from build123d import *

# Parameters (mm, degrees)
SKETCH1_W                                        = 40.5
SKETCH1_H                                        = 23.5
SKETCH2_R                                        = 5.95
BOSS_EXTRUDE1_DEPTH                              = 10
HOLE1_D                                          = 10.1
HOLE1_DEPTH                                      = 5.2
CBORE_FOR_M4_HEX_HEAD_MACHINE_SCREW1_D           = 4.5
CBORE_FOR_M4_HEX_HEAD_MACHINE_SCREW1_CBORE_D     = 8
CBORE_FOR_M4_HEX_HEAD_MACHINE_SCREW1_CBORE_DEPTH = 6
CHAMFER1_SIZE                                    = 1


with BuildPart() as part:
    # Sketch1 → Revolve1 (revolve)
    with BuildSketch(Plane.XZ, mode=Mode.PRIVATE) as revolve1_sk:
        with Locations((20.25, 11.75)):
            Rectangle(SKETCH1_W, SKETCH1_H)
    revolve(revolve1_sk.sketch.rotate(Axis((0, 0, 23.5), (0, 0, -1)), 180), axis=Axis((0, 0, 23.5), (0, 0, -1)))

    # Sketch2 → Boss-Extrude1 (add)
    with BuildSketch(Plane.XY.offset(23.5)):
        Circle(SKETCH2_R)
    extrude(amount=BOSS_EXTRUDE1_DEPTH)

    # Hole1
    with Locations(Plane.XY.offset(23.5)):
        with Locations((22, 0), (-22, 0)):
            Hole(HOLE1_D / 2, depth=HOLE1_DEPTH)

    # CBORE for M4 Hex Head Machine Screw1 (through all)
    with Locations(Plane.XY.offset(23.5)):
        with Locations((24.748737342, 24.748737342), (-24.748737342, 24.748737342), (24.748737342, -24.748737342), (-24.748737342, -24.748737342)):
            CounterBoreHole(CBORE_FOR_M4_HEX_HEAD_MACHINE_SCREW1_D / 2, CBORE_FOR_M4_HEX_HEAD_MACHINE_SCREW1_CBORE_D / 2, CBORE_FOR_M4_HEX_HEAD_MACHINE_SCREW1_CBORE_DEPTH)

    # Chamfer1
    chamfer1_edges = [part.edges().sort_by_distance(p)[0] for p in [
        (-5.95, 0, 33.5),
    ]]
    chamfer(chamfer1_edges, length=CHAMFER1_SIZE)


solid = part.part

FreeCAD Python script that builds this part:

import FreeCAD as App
import Part
import Sketcher

V = App.Vector
Q = App.Units.Quantity


def edges_at(feature, points):
    """Names of the edges that pass closest to the given points."""
    edges = feature.Shape.Edges
    near = lambda p: min(range(len(edges)), key=lambda i: edges[i].distToShape(Part.Vertex(*p))[0])
    return sorted({f"Edge{near(p) + 1}" for p in points})

doc = App.newDocument("Part")
body = doc.addObject("PartDesign::Body", "Body")

sketch1 = doc.addObject("Sketcher::SketchObject", "Sketch")
body.addObject(sketch1)
sketch1.AttachmentSupport = (doc.XZ_Plane, [""])
sketch1.MapMode = "FlatFace"
sketch1.addGeometry([
    Part.LineSegment(V(0, 23.5, 0), V(0, 0, 0)),
    Part.LineSegment(V(0, 0, 0), V(40.5, 0, 0)),
    Part.LineSegment(V(40.5, 0, 0), V(40.5, 23.5, 0)),
    Part.LineSegment(V(40.5, 23.5, 0), V(0, 23.5, 0)),
], False)
sketch1.addConstraint([
    Sketcher.Constraint("Coincident", 0, 2, 1, 1),
    Sketcher.Constraint("Coincident", 1, 2, 2, 1),
    Sketcher.Constraint("Coincident", 2, 2, 3, 1),
    Sketcher.Constraint("Coincident", 3, 2, 0, 1),
    Sketcher.Constraint("Vertical", 0),
    Sketcher.Constraint("Horizontal", 1),
    Sketcher.Constraint("Vertical", 2),
    Sketcher.Constraint("Horizontal", 3),
    Sketcher.Constraint("Coincident", 0, 2, -1, 1),
    Sketcher.Constraint("DistanceX", 1, 1, 1, 2, Q("40.5 mm")),
    Sketcher.Constraint("DistanceY", 0, 2, 0, 1, Q("23.5 mm")),
])
revolution = doc.addObject("PartDesign::Revolution", "Revolution")
body.addObject(revolution)
revolution.Profile = sketch1
revolution.ReferenceAxis = (sketch1, ["V_Axis"])
revolution.Angle = 360

sketch2 = doc.addObject("Sketcher::SketchObject", "Sketch001")
body.addObject(sketch2)
sketch2.AttachmentSupport = (doc.XY_Plane, [""])
sketch2.MapMode = "FlatFace"
sketch2.AttachmentOffset = App.Placement(V(0, 0, 23.5), App.Rotation())
sketch2.addGeometry(Part.Circle(V(0, 0, 0), V(0, 0, 1), 5.95), False)
sketch2.addConstraint([
    Sketcher.Constraint("Coincident", 0, 3, -1, 1),
    Sketcher.Constraint("Diameter", 0, Q("11.9 mm")),
])
pad1 = doc.addObject("PartDesign::Pad", "Pad")
body.addObject(pad1)
pad1.Profile = sketch2
pad1.Length = 10

sketch3 = doc.addObject("Sketcher::SketchObject", "Sketch002")
body.addObject(sketch3)
sketch3.AttachmentSupport = (doc.XY_Plane, [""])
sketch3.MapMode = "FlatFace"
sketch3.AttachmentOffset = App.Placement(V(0, 0, 23.5), App.Rotation())
sketch3.addGeometry([
    Part.Circle(V(22, 0, 0), V(0, 0, 1), 5.05),
    Part.Circle(V(-22, 0, 0), V(0, 0, 1), 5.05),
], False)
sketch3.addConstraint([
    Sketcher.Constraint("Equal", 0, 1),
    Sketcher.Constraint("Symmetric", 0, 3, 1, 3, -1, 1),
    Sketcher.Constraint("PointOnObject", 0, 3, -1),
    Sketcher.Constraint("Diameter", 0, Q("10.1 mm")),
    Sketcher.Constraint("DistanceX", -1, 1, 0, 3, Q("22 mm")),
])
doc.recompute()
hole = doc.addObject("PartDesign::Hole", "Hole")
body.addObject(hole)
hole.Profile = sketch3
hole.ThreadType = "None"
hole.Diameter = 10.1
hole.DepthType = "Dimension"
hole.Depth = 5.2
hole.DrillPoint = "Flat"

sketch4 = doc.addObject("Sketcher::SketchObject", "Sketch003")
body.addObject(sketch4)
sketch4.AttachmentSupport = (doc.XY_Plane, [""])
sketch4.MapMode = "FlatFace"
sketch4.AttachmentOffset = App.Placement(V(0, 0, 23.5), App.Rotation())
sketch4.addGeometry([
    Part.Circle(V(24.748737, 24.748737, 0), V(0, 0, 1), 2.25),
    Part.Circle(V(-24.748737, 24.748737, 0), V(0, 0, 1), 2.25),
    Part.Circle(V(24.748737, -24.748737, 0), V(0, 0, 1), 2.25),
    Part.Circle(V(-24.748737, -24.748737, 0), V(0, 0, 1), 2.25),
], False)
sketch4.addConstraint([
    Sketcher.Constraint("Equal", 0, 1),
    Sketcher.Constraint("Equal", 1, 2),
    Sketcher.Constraint("Equal", 2, 3),
    Sketcher.Constraint("Symmetric", 1, 3, 2, 3, -1, 1),
    Sketcher.Constraint("Symmetric", 0, 3, 3, 3, -1, 1),
    Sketcher.Constraint("Symmetric", 0, 3, 1, 3, -2),
    Sketcher.Constraint("Diameter", 0, Q("4.5 mm")),
    Sketcher.Constraint("DistanceX", -1, 1, 0, 3, Q("24.748737 mm")),
    Sketcher.Constraint("DistanceY", -1, 1, 0, 3, Q("24.748737 mm")),
])
doc.recompute()
hole2 = doc.addObject("PartDesign::Hole", "Hole001")
body.addObject(hole2)
hole2.Profile = sketch4
hole2.ThreadType = "None"
hole2.Diameter = 4.5
hole2.DepthType = "ThroughAll"
hole2.HoleCutType = "Counterbore"
hole2.HoleCutDiameter = 8
hole2.HoleCutDepth = 6
doc.recompute()

chamfer = doc.addObject("PartDesign::Chamfer", "Chamfer")
body.addObject(chamfer)
chamfer.Base = (hole2, edges_at(hole2, [(-5.95, 0, 33.5)]))
chamfer.Size = 1

doc.recompute()
